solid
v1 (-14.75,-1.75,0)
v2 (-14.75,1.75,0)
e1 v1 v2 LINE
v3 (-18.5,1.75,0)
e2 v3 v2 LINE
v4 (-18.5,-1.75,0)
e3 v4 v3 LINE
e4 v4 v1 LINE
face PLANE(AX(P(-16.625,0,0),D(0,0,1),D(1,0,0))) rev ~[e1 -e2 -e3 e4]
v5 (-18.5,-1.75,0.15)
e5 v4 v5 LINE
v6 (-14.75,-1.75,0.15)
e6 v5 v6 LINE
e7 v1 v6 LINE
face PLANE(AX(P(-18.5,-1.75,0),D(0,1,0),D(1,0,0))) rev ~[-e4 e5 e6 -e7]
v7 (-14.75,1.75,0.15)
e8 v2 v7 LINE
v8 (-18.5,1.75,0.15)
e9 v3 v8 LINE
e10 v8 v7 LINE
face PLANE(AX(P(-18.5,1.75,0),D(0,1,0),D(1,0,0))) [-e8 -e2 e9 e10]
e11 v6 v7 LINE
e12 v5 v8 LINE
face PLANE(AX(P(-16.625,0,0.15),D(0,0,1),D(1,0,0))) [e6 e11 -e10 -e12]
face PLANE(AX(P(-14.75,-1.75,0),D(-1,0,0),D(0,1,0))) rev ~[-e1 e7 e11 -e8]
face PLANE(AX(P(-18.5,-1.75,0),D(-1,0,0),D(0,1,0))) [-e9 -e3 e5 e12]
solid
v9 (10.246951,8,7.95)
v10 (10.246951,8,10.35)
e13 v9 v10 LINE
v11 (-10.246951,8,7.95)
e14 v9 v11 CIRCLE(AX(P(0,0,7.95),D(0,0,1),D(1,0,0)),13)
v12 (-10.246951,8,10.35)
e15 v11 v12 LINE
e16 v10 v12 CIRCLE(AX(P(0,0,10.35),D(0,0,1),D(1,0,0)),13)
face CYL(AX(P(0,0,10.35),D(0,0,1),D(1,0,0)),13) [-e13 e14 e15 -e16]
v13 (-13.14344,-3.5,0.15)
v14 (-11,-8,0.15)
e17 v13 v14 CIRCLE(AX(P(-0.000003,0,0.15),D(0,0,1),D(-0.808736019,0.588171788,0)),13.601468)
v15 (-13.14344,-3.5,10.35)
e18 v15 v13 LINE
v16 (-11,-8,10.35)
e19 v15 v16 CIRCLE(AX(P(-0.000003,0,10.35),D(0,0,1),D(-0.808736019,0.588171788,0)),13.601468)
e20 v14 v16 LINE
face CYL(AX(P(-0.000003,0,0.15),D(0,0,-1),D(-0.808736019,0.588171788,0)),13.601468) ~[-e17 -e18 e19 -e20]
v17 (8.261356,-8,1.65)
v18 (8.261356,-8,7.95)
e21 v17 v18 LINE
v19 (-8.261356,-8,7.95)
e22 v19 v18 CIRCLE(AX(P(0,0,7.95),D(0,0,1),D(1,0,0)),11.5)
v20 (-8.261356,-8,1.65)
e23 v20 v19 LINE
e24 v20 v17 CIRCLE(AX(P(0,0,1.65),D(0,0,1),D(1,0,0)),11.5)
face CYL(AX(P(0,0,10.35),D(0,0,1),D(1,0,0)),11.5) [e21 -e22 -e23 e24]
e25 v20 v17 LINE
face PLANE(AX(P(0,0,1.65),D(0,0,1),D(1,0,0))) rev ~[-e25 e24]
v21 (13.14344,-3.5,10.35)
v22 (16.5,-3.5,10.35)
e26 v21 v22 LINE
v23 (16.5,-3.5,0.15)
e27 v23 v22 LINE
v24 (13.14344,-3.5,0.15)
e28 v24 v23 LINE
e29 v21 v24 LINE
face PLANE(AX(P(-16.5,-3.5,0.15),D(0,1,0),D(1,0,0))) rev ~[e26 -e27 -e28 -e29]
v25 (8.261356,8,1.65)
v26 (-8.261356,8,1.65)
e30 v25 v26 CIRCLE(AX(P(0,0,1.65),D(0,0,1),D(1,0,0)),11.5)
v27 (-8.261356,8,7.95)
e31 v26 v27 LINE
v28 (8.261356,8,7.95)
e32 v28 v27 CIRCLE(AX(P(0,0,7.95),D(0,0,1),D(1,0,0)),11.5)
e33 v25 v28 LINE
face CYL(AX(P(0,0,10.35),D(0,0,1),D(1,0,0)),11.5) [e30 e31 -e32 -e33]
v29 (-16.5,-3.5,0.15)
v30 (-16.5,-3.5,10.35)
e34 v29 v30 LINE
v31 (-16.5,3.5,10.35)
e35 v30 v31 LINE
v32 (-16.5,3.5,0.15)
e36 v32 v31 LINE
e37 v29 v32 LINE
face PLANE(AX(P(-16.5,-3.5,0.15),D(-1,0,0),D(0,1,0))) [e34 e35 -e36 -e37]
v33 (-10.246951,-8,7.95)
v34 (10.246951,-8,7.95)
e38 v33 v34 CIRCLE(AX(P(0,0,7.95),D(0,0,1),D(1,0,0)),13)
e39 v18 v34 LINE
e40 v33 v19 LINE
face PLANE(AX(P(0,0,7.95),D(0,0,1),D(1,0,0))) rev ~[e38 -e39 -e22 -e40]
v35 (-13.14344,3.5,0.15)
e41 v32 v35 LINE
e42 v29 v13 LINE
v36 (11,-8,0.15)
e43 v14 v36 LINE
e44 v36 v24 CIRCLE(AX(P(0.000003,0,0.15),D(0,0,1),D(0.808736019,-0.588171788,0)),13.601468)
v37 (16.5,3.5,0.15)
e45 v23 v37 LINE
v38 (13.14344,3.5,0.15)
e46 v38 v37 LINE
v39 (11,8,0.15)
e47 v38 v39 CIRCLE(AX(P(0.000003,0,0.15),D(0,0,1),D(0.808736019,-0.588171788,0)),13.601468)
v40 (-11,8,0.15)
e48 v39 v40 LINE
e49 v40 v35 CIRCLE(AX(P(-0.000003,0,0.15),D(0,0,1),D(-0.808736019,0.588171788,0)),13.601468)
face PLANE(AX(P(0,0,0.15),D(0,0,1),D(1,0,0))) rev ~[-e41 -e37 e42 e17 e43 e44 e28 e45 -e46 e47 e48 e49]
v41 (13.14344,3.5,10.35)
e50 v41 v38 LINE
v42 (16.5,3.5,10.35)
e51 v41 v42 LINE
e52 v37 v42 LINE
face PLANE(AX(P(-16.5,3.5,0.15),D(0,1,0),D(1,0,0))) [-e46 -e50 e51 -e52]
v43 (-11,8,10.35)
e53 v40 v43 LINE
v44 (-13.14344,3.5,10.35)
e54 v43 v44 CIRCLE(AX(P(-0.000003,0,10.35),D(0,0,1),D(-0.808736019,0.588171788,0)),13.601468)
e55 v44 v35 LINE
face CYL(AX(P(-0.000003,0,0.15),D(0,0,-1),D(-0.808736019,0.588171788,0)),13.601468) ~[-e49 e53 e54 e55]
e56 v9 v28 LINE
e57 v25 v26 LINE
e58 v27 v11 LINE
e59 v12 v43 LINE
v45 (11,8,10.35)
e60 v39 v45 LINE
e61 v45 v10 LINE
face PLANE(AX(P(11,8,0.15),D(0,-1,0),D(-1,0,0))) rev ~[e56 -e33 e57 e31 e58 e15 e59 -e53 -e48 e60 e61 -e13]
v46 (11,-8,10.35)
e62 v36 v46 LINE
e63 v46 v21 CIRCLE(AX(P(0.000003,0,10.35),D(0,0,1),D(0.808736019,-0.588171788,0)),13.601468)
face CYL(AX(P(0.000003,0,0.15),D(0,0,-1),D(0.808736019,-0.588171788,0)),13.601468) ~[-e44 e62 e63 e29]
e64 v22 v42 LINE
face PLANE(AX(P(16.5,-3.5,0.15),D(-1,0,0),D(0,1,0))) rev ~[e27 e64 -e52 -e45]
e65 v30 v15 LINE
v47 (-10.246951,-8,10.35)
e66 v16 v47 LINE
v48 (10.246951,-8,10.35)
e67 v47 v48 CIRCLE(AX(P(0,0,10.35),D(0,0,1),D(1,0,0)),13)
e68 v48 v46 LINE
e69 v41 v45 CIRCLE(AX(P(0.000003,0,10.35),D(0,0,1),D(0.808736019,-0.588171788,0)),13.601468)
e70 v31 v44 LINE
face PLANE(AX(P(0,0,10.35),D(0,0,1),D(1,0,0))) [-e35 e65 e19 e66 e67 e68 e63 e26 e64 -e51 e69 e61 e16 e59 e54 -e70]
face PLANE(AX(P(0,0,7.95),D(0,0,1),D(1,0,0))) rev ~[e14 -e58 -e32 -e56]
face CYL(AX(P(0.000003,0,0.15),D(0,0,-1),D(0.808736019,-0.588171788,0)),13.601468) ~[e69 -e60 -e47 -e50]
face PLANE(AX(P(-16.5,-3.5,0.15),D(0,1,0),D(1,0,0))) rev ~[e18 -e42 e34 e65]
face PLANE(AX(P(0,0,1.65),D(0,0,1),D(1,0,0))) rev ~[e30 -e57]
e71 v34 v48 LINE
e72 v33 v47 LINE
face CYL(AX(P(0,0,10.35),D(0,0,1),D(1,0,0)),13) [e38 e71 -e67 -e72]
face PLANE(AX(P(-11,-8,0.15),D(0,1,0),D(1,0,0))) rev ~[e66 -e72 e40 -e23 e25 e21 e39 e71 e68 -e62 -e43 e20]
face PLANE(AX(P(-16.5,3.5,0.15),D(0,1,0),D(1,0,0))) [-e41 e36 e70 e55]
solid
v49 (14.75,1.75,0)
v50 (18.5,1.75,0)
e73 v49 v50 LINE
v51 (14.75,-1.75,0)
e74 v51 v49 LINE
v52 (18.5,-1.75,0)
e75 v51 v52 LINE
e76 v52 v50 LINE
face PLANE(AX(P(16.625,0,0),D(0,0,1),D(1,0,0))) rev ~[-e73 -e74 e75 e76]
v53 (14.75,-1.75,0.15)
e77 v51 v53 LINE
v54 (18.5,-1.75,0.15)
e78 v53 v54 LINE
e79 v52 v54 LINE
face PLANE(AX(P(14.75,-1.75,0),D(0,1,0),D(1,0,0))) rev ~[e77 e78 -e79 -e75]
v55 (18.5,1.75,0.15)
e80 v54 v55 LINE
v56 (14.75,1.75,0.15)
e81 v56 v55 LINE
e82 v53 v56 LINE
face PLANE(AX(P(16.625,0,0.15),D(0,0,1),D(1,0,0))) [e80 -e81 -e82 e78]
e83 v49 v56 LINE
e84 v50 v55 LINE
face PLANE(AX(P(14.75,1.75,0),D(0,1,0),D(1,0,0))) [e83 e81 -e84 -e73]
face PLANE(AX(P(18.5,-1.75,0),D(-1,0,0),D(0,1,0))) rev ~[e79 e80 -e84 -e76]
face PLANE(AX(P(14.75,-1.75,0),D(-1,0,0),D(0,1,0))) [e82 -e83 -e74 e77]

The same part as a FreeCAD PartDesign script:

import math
import FreeCAD as App
import Part
import Sketcher
from FreeCAD import Vector
Q = App.Units.Quantity

doc = App.newDocument("Part")
body = doc.addObject("PartDesign::Body", "Body")
body.AllowCompound = True

sketch1 = doc.addObject("Sketcher::SketchObject", "Sketch")
body.addObject(sketch1)
sketch1.AttachmentSupport = (doc.XY_Plane, [""])
sketch1.MapMode = "FlatFace"
sketch1.addGeometry(Part.LineSegment(Vector(-18.5, 1.8, 0), Vector(-18.5, -1.8, 0)), False)
sketch1.addGeometry(Part.LineSegment(Vector(-18.5, -1.8, 0), Vector(-14.8, -1.8, 0)), False)
sketch1.addGeometry(Part.LineSegment(Vector(-14.8, -1.8, 0), Vector(-14.8, 1.8, 0)), False)
sketch1.addGeometry(Part.LineSegment(Vector(-14.8, 1.8, 0), Vector(-18.5, 1.8, 0)), False)
sketch1.addGeometry(Part.LineSegment(Vector(14.8, 1.8, 0), Vector(14.8, -1.8, 0)), False)
sketch1.addGeometry(Part.LineSegment(Vector(14.8, -1.8, 0), Vector(18.5, -1.8, 0)), False)
sketch1.addGeometry(Part.LineSegment(Vector(18.5, -1.8, 0), Vector(18.5, 1.8, 0)), False)
sketch1.addGeometry(Part.LineSegment(Vector(18.5, 1.8, 0), Vector(14.8, 1.8, 0)), False)
sketch1.addConstraint(Sketcher.Constraint("Coincident", 0, 2, 1, 1))
sketch1.addConstraint(Sketcher.Constraint("Coincident", 1, 2, 2, 1))
sketch1.addConstraint(Sketcher.Constraint("Coincident", 2, 2, 3, 1))
sketch1.addConstraint(Sketcher.Constraint("Coincident", 3, 2, 0, 1))
sketch1.addConstraint(Sketcher.Constraint("Coincident", 4, 2, 5, 1))
sketch1.addConstraint(Sketcher.Constraint("Coincident", 5, 2, 6, 1))
sketch1.addConstraint(Sketcher.Constraint("Coincident", 6, 2, 7, 1))
sketch1.addConstraint(Sketcher.Constraint("Coincident", 7, 2, 4, 1))
sketch1.addConstraint(Sketcher.Constraint("Vertical", 0))
sketch1.addConstraint(Sketcher.Constraint("Horizontal", 1))
sketch1.addConstraint(Sketcher.Constraint("Vertical", 2))
sketch1.addConstraint(Sketcher.Constraint("Horizontal", 3))
sketch1.addConstraint(Sketcher.Constraint("Vertical", 4))
sketch1.addConstraint(Sketcher.Constraint("Horizontal", 5))
sketch1.addConstraint(Sketcher.Constraint("Vertical", 6))
sketch1.addConstraint(Sketcher.Constraint("Horizontal", 7))
sketch1.addConstraint(Sketcher.Constraint("Symmetric", 2, 2, 4, 2, -1, 1))
sketch1.addConstraint(Sketcher.Constraint("Symmetric", 0, 2, 6, 2, -1, 1))
sketch1.addConstraint(Sketcher.Constraint("Horizontal", 1, 2, 4, 2))
sketch1.addConstraint(Sketcher.Constraint("DistanceY", 0, 2, 0, 1, Q("3.5 mm")))
sketch1.addConstraint(Sketcher.Constraint("DistanceX", 0, 2, 5, 2, Q("37 mm")))
sketch1.addConstraint(Sketcher.Constraint("DistanceX", 1, 1, 1, 2, Q("3.75 mm")))
pad1 = doc.addObject("PartDesign::Pad", "Pad")
body.addObject(pad1)
pad1.Profile = sketch1
pad1.Length = 0.15
body2 = doc.addObject("PartDesign::Body", "Body001")

sketch2 = doc.addObject("Sketcher::SketchObject", "Sketch001")
body2.addObject(sketch2)
sketch2.AttachmentSupport = (doc.getObject("XY_Plane001"), [""])
sketch2.MapMode = "FlatFace"
sketch2.AttachmentOffset = App.Placement(Vector(0, 0, 0.15), App.Rotation())
sketch2.addGeometry(Part.LineSegment(Vector(-16, 4, 0), Vector(-16, -4, 0)), False)
sketch2.addGeometry(Part.LineSegment(Vector(-16, -4, 0), Vector(16, -4, 0)), False)
sketch2.addGeometry(Part.LineSegment(Vector(16, -4, 0), Vector(16, 4, 0)), False)
sketch2.addGeometry(Part.LineSegment(Vector(16, 4, 0), Vector(-16, 4, 0)), False)
sketch2.addConstraint(Sketcher.Constraint("Coincident", 0, 2, 1, 1))
sketch2.addConstraint(Sketcher.Constraint("Coincident", 1, 2, 2, 1))
sketch2.addConstraint(Sketcher.Constraint("Coincident", 2, 2, 3, 1))
sketch2.addConstraint(Sketcher.Constraint("Coincident", 3, 2, 0, 1))
sketch2.addConstraint(Sketcher.Constraint("Vertical", 0))
sketch2.addConstraint(Sketcher.Constraint("Horizontal", 1))
sketch2.addConstraint(Sketcher.Constraint("Vertical", 2))
sketch2.addConstraint(Sketcher.Constraint("Horizontal", 3))
sketch2.addConstraint(Sketcher.Constraint("Symmetric", 0, 2, 2, 2, -1, 1))
sketch2.addConstraint(Sketcher.Constraint("DistanceX", 1, 1, 1, 2, Q("33 mm")))
sketch2.addConstraint(Sketcher.Constraint("DistanceY", 0, 2, 0, 1, Q("7 mm")))
pad2 = doc.addObject("PartDesign::Pad", "Pad001")
body2.addObject(pad2)
pad2.Profile = sketch2
pad2.Length = 10.2

sketch3 = doc.addObject("Sketcher::SketchObject", "Sketch002")
body2.addObject(sketch3)
sketch3.AttachmentSupport = (doc.getObject("XY_Plane001"), [""])
sketch3.MapMode = "FlatFace"
sketch3.AttachmentOffset = App.Placement(Vector(0, 0, 0.15), App.Rotation())
sketch3.addGeometry(Part.LineSegment(Vector(11, 8, 0), Vector(-11, 8, 0)), False)
sketch3.addGeometry(Part.ArcOfCircle(Part.Circle(Vector(0, 0, 0), Vector(0, 0, 1), 14), math.radians(144), math.radians(216)), False)
sketch3.addGeometry(Part.LineSegment(Vector(-11, -8, 0), Vector(11, -8, 0)), False)
sketch3.addGeometry(Part.ArcOfCircle(Part.Circle(Vector(0, 0, 0), Vector(0, 0, 1), 14), math.radians(-36), math.radians(36)), False)
sketch3.addConstraint(Sketcher.Constraint("Coincident", 0, 2, 1, 1))
sketch3.addConstraint(Sketcher.Constraint("Coincident", 1, 2, 2, 1))
sketch3.addConstraint(Sketcher.Constraint("Coincident", 2, 2, 3, 1))
sketch3.addConstraint(Sketcher.Constraint("Coincident", 3, 2, 0, 1))
sketch3.addConstraint(Sketcher.Constraint("Horizontal", 0))
sketch3.addConstraint(Sketcher.Constraint("Horizontal", 2))
sketch3.addConstraint(Sketcher.Constraint("Coincident", 1, 3, -1, 1))
sketch3.addConstraint(Sketcher.Constraint("Coincident", 3, 3, -1, 1))
sketch3.addConstraint(Sketcher.Constraint("Equal", 1, 3))
sketch3.addConstraint(Sketcher.Constraint("Vertical", 0, 2, 1, 2))
sketch3.addConstraint(Sketcher.Constraint("DistanceX", 0, 2, 0, 1, Q("22 mm")))
sketch3.addConstraint(Sketcher.Constraint("DistanceY", -1, 1, 0, 2, Q("8 mm")))
pad3 = doc.addObject("PartDesign::Pad", "Pad002")
body2.addObject(pad3)
pad3.Profile = sketch3
pad3.Length = 10.2

sketch4 = doc.addObject("Sketcher::SketchObject", "Sketch003")
body2.addObject(sketch4)
sketch4.AttachmentSupport = (doc.getObject("XY_Plane001"), [""])
sketch4.MapMode = "FlatFace"
sketch4.AttachmentOffset = App.Placement(Vector(0, 0, 10.35), App.Rotation())
sketch4.addGeometry(Part.Circle(Vector(0, 0, 0), Vector(0, 0, 1), 12), False)
sketch4.addConstraint(Sketcher.Constraint("Coincident", 0, 3, -1, 1))
sketch4.addConstraint(Sketcher.Constraint("Diameter", 0, Q("23 mm")))
pad4 = doc.addObject("PartDesign::Pad", "Pad003")
body2.addObject(pad4)
pad4.Profile = sketch4
pad4.Length = 8.7
pad4.Reversed = True

sketch5 = doc.addObject("Sketcher::SketchObject", "Sketch004")
body2.addObject(sketch5)
sketch5.AttachmentSupport = (doc.getObject("XY_Plane001"), [""])
sketch5.MapMode = "FlatFace"
sketch5.AttachmentOffset = App.Placement(Vector(0, 0, 10.35), App.Rotation())
sketch5.addGeometry(Part.Circle(Vector(0, 0, 0), Vector(0, 0, 1), 13), False)
sketch5.addConstraint(Sketcher.Constraint("Coincident", 0, 3, -1, 1))
sketch5.addConstraint(Sketcher.Constraint("Diameter", 0, Q("26 mm")))
pad5 = doc.addObject("PartDesign::Pad", "Pad004")
body2.addObject(pad5)
pad5.Profile = sketch5
pad5.Length = 2.4
pad5.Reversed = True

doc.recompute()
